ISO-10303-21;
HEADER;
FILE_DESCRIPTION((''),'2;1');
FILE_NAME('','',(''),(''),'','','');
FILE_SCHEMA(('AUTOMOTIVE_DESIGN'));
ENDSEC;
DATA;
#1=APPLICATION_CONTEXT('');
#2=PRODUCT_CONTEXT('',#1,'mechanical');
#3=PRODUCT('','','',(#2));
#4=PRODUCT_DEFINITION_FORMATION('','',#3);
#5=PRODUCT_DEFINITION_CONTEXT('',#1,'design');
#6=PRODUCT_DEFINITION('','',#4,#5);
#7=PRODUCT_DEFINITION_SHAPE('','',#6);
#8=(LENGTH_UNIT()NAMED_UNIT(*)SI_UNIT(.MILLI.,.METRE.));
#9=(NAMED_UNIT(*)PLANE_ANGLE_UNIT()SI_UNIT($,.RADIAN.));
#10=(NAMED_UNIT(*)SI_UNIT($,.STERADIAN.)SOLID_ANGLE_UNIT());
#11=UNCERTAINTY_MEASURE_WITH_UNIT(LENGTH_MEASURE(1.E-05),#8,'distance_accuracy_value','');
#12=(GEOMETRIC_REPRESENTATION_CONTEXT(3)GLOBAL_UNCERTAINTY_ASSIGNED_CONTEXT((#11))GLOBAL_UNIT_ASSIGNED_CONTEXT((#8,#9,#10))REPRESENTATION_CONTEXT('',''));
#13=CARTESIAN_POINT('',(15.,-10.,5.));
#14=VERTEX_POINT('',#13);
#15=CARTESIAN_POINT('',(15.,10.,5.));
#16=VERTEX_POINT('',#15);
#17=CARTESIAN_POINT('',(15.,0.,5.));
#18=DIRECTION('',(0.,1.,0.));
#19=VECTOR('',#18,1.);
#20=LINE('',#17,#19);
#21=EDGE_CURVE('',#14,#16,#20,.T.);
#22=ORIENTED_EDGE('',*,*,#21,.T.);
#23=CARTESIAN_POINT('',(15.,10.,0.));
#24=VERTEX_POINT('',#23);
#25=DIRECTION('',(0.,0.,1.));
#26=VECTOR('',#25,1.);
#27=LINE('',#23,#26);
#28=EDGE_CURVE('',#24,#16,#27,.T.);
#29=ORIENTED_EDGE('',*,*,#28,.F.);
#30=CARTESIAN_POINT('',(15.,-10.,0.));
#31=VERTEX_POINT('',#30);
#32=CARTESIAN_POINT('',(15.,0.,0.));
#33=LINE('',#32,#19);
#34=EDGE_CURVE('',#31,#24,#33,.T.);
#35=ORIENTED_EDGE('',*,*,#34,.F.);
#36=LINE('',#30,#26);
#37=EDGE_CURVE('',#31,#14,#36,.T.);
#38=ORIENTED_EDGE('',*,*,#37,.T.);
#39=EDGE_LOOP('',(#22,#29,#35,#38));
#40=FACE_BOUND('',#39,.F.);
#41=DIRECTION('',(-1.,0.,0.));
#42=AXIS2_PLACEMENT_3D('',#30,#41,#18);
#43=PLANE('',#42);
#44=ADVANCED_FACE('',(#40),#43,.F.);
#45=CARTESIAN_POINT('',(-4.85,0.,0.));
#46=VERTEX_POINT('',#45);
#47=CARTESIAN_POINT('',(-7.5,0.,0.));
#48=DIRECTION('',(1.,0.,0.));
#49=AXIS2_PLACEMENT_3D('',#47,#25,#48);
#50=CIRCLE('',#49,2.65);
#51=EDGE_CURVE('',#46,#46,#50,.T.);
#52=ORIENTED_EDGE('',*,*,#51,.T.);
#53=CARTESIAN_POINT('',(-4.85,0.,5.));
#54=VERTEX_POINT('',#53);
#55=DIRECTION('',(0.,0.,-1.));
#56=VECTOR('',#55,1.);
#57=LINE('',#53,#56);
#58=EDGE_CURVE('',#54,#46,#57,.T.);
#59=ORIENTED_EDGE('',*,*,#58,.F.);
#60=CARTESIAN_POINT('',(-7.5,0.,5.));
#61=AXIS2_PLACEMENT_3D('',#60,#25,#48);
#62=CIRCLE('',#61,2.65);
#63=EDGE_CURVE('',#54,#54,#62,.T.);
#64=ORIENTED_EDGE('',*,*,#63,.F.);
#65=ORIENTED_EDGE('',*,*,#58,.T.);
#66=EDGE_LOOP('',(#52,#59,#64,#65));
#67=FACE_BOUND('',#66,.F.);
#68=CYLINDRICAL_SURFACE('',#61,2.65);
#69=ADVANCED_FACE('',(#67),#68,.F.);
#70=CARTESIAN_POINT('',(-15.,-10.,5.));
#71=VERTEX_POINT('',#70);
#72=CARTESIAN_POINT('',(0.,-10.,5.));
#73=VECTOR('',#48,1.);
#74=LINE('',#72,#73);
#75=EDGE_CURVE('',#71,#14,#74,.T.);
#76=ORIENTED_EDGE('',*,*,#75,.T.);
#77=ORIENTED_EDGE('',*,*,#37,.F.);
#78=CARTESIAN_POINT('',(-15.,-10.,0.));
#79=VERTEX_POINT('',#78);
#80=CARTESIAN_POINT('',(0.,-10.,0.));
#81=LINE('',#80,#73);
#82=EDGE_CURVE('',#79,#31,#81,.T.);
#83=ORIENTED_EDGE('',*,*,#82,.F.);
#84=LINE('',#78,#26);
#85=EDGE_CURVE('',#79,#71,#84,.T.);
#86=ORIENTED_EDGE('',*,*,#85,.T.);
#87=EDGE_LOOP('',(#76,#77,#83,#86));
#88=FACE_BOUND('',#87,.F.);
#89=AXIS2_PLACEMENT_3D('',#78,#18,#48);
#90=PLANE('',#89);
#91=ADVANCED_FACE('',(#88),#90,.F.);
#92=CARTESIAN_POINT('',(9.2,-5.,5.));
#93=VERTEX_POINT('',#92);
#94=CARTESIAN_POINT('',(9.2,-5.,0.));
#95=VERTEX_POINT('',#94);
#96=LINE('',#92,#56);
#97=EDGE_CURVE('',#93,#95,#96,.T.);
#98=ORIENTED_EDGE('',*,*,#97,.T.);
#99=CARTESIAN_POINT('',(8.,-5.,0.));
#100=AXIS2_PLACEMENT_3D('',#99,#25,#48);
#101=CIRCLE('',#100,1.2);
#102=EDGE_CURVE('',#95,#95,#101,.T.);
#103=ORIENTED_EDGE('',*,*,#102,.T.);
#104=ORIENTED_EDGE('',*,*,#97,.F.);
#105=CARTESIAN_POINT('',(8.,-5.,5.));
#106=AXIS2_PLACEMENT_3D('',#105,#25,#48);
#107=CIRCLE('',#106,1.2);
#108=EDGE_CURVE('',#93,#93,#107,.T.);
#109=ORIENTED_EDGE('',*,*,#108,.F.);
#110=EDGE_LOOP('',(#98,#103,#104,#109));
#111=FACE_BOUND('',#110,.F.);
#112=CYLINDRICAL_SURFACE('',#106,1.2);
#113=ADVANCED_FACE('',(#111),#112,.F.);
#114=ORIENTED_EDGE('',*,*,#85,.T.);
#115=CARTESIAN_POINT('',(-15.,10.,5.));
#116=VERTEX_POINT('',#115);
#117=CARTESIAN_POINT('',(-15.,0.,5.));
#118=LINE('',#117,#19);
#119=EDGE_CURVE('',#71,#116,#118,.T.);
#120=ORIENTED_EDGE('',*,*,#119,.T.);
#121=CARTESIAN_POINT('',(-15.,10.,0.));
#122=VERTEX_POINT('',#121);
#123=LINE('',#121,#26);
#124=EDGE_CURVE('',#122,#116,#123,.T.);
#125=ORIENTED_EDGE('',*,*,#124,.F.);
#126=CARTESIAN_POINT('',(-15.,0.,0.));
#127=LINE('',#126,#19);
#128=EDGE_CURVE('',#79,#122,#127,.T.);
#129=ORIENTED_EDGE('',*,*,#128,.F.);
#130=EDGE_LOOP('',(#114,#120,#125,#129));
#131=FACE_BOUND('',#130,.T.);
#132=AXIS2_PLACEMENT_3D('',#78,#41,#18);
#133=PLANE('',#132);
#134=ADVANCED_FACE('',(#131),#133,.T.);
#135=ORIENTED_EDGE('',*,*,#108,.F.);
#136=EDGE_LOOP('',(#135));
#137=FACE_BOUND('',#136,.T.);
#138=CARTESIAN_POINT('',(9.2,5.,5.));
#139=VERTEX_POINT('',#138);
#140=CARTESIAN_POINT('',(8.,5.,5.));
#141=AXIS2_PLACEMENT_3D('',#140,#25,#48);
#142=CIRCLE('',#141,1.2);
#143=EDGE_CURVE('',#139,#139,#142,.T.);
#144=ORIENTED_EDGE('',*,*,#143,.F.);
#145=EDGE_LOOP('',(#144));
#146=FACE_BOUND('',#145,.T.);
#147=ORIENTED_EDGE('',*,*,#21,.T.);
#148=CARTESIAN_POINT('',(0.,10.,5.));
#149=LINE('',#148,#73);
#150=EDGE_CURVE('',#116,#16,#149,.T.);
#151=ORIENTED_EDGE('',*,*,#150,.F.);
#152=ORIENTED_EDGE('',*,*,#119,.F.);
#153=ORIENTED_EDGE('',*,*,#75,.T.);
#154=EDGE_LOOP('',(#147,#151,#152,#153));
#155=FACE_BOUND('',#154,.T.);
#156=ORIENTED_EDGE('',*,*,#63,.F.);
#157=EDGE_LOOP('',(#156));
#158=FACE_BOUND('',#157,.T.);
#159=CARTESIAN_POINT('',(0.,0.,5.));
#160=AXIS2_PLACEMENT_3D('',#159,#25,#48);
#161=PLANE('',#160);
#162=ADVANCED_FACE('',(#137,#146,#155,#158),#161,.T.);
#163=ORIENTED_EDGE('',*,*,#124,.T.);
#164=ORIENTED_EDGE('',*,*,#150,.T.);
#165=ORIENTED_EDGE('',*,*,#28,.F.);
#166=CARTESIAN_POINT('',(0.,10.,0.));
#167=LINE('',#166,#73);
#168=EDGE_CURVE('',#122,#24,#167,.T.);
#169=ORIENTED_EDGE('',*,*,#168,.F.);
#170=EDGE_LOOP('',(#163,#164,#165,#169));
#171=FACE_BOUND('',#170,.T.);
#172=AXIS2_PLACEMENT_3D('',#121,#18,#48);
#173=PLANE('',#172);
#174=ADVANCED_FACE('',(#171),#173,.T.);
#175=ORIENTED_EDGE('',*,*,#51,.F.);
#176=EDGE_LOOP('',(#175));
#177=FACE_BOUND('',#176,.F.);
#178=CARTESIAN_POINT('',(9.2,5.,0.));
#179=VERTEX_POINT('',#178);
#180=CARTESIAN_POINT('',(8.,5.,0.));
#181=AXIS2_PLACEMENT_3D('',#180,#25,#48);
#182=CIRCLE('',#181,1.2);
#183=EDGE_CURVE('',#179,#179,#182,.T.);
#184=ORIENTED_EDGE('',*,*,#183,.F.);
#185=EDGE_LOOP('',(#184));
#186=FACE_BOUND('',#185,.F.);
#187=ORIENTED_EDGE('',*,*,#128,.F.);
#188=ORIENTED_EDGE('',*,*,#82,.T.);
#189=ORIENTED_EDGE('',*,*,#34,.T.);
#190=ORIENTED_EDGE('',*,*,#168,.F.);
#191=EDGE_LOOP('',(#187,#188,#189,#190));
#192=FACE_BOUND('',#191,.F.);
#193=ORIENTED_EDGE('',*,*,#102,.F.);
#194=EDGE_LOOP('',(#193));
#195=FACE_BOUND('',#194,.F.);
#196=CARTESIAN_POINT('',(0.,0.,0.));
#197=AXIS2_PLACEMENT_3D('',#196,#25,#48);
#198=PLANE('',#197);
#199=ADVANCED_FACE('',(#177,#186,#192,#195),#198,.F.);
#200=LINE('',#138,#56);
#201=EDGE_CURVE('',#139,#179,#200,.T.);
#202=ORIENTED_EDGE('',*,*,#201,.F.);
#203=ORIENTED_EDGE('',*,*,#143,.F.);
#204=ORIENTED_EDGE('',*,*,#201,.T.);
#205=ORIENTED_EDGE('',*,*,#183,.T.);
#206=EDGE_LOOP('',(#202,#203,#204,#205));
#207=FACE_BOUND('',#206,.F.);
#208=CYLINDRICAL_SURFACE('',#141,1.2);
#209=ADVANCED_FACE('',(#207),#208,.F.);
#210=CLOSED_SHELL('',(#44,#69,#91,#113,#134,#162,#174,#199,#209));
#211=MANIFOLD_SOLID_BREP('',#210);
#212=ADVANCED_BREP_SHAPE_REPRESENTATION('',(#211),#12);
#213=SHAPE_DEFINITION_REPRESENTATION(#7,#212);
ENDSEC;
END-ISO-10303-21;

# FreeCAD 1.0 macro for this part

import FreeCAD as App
import Part
import Sketcher


def add_polygon(sketch, points):
    """Adds a closed chain of lines whose ends are joined by coincident constraints."""
    first, n = sketch.GeometryCount, len(points)
    for a, b in zip(points, points[1:] + points[:1]):
        sketch.addGeometry(Part.LineSegment(App.Vector(*a, 0), App.Vector(*b, 0)), False)
    for i in range(n):
        sketch.addConstraint(Sketcher.Constraint("Coincident", first + i, 2, first + (i + 1) % n, 1))

doc = App.newDocument("Part")
body = doc.addObject("PartDesign::Body", "Body")

sketch1 = doc.addObject("Sketcher::SketchObject", "Sketch")
body.addObject(sketch1)
sketch1.AttachmentSupport = (doc.XY_Plane, [""])
sketch1.MapMode = "FlatFace"
add_polygon(sketch1, [(-15, 10), (-15, -10), (15, -10), (15, 10)])
sketch1.addConstraint([
    Sketcher.Constraint("Vertical", 0),
    Sketcher.Constraint("Horizontal", 1),
    Sketcher.Constraint("Vertical", 2),
    Sketcher.Constraint("Horizontal", 3),
    Sketcher.Constraint("Symmetric", 0, 2, 2, 2, -1, 1),
    Sketcher.Constraint("DistanceX", 1, 1, 1, 2, 30.0),
    Sketcher.Constraint("DistanceY", 0, 2, 0, 1, 20.0),
])
pad1 = doc.addObject("PartDesign::Pad", "Pad")
body.addObject(pad1)
pad1.Profile = sketch1
pad1.Length = 5

sketch2 = doc.addObject("Sketcher::SketchObject", "Sketch001")
body.addObject(sketch2)
sketch2.AttachmentSupport = (doc.XY_Plane, [""])
sketch2.MapMode = "FlatFace"
sketch2.AttachmentOffset = App.Placement(App.Vector(0, 0, 5), App.Rotation())
sketch2.addGeometry([
    Part.Circle(App.Vector(8, 5, 0), App.Vector(0, 0, 1), 1.2),
    Part.Circle(App.Vector(8, -5, 0), App.Vector(0, 0, 1), 1.2),
], False)
sketch2.addConstraint([
    Sketcher.Constraint("Equal", 0, 1),
    Sketcher.Constraint("Symmetric", 0, 3, 1, 3, -1),
    Sketcher.Constraint("Diameter", 0, 2.4),
    Sketcher.Constraint("DistanceX", -1, 1, 0, 3, 8.0),
    Sketcher.Constraint("DistanceY", -1, 1, 0, 3, 5.0),
])
pocket1 = doc.addObject("PartDesign::Pocket", "Pocket")
body.addObject(pocket1)
pocket1.Profile = sketch2
pocket1.Length = 5

sketch3 = doc.addObject("Sketcher::SketchObject", "Sketch002")
body.addObject(sketch3)
sketch3.AttachmentSupport = (doc.XY_Plane, [""])
sketch3.MapMode = "FlatFace"
sketch3.AttachmentOffset = App.Placement(App.Vector(0, 0, 5), App.Rotation())
sketch3.addGeometry(Part.Circle(App.Vector(-7.5, 0, 0), App.Vector(0, 0, 1), 2.6), False)
sketch3.addConstraint([
    Sketcher.Constraint("PointOnObject", 0, 3, -1),
    Sketcher.Constraint("Diameter", 0, 5.3),
    Sketcher.Constraint("DistanceX", 0, 3, -1, 1, 7.5),
])
pocket2 = doc.addObject("PartDesign::Pocket", "Pocket001")
body.addObject(pocket2)
pocket2.Profile = sketch3
pocket2.Length = 5

doc.recompute()
